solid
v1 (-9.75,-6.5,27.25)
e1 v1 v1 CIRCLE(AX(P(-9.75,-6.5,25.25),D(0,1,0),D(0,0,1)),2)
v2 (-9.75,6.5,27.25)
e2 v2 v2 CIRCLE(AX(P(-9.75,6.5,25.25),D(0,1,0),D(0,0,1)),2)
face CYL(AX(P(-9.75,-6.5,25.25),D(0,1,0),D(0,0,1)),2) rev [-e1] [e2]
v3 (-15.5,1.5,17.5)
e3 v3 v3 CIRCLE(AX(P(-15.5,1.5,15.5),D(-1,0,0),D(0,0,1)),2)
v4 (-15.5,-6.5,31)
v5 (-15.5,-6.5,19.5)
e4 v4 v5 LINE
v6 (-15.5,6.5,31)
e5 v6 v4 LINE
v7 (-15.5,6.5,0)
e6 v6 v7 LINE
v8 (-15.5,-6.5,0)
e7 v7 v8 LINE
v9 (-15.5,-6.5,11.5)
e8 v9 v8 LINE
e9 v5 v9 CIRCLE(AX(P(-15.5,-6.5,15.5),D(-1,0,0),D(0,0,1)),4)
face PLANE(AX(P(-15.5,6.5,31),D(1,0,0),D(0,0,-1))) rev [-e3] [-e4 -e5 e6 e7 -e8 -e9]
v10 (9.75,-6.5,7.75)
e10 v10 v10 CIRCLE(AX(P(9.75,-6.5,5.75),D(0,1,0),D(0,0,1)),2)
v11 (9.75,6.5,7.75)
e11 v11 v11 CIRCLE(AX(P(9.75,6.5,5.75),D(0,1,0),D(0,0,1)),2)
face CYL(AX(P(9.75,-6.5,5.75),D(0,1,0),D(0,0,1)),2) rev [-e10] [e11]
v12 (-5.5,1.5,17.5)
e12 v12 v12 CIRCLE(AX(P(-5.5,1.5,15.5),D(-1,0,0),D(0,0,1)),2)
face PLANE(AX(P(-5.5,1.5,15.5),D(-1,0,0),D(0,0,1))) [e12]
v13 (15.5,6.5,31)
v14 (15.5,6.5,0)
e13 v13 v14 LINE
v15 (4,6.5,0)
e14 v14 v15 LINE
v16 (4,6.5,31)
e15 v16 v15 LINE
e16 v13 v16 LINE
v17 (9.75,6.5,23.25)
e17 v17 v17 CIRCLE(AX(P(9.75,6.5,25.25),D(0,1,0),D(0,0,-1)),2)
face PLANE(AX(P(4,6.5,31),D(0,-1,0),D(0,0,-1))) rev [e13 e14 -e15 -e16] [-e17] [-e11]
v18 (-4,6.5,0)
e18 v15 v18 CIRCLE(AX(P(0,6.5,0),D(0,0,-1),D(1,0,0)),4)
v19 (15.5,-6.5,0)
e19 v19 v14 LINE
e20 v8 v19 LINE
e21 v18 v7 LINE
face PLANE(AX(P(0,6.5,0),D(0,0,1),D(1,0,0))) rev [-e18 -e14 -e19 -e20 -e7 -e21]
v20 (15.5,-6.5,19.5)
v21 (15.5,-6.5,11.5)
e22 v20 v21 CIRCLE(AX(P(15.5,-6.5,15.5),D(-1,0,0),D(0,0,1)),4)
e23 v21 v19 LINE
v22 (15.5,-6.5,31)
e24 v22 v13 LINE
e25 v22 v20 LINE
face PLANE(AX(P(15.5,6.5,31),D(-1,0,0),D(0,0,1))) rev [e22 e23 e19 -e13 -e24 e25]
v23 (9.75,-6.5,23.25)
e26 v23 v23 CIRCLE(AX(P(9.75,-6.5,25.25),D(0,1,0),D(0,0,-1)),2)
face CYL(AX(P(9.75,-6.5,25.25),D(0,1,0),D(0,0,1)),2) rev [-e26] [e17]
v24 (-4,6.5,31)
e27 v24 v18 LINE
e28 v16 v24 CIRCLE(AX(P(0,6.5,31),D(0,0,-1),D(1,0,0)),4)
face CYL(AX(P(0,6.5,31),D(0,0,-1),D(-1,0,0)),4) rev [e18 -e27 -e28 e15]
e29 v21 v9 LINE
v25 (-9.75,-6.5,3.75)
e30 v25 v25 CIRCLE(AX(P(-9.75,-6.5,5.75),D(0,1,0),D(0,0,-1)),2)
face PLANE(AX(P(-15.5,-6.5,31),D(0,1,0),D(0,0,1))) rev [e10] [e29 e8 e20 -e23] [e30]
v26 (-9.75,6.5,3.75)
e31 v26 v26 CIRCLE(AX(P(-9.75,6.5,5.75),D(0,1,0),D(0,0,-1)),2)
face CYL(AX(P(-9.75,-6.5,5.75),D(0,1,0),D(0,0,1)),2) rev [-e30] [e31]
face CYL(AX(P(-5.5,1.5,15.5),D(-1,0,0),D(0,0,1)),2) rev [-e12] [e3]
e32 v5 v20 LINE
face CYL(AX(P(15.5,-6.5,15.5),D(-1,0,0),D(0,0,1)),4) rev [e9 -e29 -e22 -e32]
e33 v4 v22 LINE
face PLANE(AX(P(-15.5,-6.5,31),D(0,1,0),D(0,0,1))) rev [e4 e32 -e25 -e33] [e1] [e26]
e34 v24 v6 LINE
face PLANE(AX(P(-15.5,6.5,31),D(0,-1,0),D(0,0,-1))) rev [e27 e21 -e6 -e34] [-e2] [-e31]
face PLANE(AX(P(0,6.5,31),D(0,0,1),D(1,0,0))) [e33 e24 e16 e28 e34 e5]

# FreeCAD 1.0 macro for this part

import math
import FreeCAD as App
import Part
import Sketcher
from FreeCAD import Vector

doc = App.newDocument("Part")
params = doc.addObject("Spreadsheet::Sheet", "Params")
for row, (alias, value) in enumerate([
    ("sketch1_radius", "4 mm"),
    ("sketch1_width", "31 mm"),
    ("sketch1_height", "13 mm"),
    ("pad1_length", "31 mm"),
    ("sketch2_diameter", "8 mm"),
    ("sketch3_diameter", "4 mm"),
    ("sketch4_diameter", "4 mm"),
    ("pocket3_length", "10 mm"),
], start=1):
    params.set(f"A{row}", alias)
    params.set(f"B{row}", "=" + value)
    params.setAlias(f"B{row}", alias)

body = doc.addObject("PartDesign::Body", "Body")

sketch1 = doc.addObject("Sketcher::SketchObject", "Sketch")
body.addObject(sketch1)
sketch1.AttachmentSupport = (doc.XY_Plane, [""])
sketch1.MapMode = "FlatFace"
sketch1.addGeometry([
    Part.LineSegment(Vector(-4, 6.5, 0), Vector(-15.5, 6.5, 0)),
    Part.LineSegment(Vector(-15.5, 6.5, 0), Vector(-15.5, -6.5, 0)),
    Part.LineSegment(Vector(-15.5, -6.5, 0), Vector(15.5, -6.5, 0)),
    Part.LineSegment(Vector(15.5, -6.5, 0), Vector(15.5, 6.5, 0)),
    Part.LineSegment(Vector(15.5, 6.5, 0), Vector(4, 6.5, 0)),
    Part.ArcOfCircle(Part.Circle(Vector(0, 6.5, 0), Vector(0, 0, 1), 4), math.radians(180), math.radians(360)),
], False)
sketch1.addConstraint([
    Sketcher.Constraint("Coincident", 0, 2, 1, 1),
    Sketcher.Constraint("Coincident", 1, 2, 2, 1),
    Sketcher.Constraint("Coincident", 2, 2, 3, 1),
    Sketcher.Constraint("Coincident", 3, 2, 4, 1),
    Sketcher.Constraint("Coincident", 4, 2, 5, 2),
    Sketcher.Constraint("Coincident", 5, 1, 0, 1),
    Sketcher.Constraint("Horizontal", 0),
    Sketcher.Constraint("Vertical", 1),
    Sketcher.Constraint("Horizontal", 2),
    Sketcher.Constraint("Vertical", 3),
    Sketcher.Constraint("Horizontal", 4),
    Sketcher.Constraint("Symmetric", 0, 2, 2, 2, -1, 1),
    Sketcher.Constraint("Symmetric", 4, 2, 5, 1, -2),
    Sketcher.Constraint("Horizontal", 5, 3, 0, 2),
    Sketcher.Constraint("Radius", 5, 4.0),
    Sketcher.Constraint("DistanceX", 2, 1, 2, 2, 31.0),
    Sketcher.Constraint("DistanceY", 1, 2, 1, 1, 13.0),
])
sketch1.setExpression("Constraints[14]", "Params.sketch1_radius")
sketch1.setExpression("Constraints[15]", "Params.sketch1_width")
sketch1.setExpression("Constraints[16]", "Params.sketch1_height")
pad1 = doc.addObject("PartDesign::Pad", "Pad")
body.addObject(pad1)
pad1.Profile = sketch1
pad1.setExpression("Length", "Params.pad1_length")

sketch2 = doc.addObject("Sketcher::SketchObject", "Sketch001")
body.addObject(sketch2)
sketch2.AttachmentSupport = (doc.YZ_Plane, [""])
sketch2.MapMode = "FlatFace"
sketch2.AttachmentOffset = App.Placement(Vector(0, 0, -15.5), App.Rotation())
sketch2.addGeometry(Part.Circle(Vector(-6.5, 15.5, 0), Vector(0, 0, 1), 4), False)
sketch2.addConstraint([
    Sketcher.Constraint("Diameter", 0, 8.0),
    Sketcher.Constraint("DistanceX", 0, 3, -1, 1, 6.5),
    Sketcher.Constraint("DistanceY", -1, 1, 0, 3, 15.5),
])
sketch2.setExpression("Constraints[0]", "Params.sketch2_diameter")
pocket1 = doc.addObject("PartDesign::Pocket", "Pocket")
body.addObject(pocket1)
pocket1.Profile = sketch2
pocket1.Type = "ThroughAll"
pocket1.Reversed = True

sketch3 = doc.addObject("Sketcher::SketchObject", "Sketch002")
body.addObject(sketch3)
sketch3.AttachmentSupport = (doc.XZ_Plane, [""])
sketch3.MapMode = "FlatFace"
sketch3.AttachmentOffset = App.Placement(Vector(0, 0, -6.5), App.Rotation())
sketch3.addGeometry([
    Part.Circle(Vector(9.8, 5.8, 0), Vector(0, 0, 1), 2),
    Part.Circle(Vector(9.8, 25.2, 0), Vector(0, 0, 1), 2),
    Part.Circle(Vector(-9.8, 25.2, 0), Vector(0, 0, 1), 2),
    Part.Circle(Vector(-9.8, 5.8, 0), Vector(0, 0, 1), 2),
], False)
sketch3.addConstraint([
    Sketcher.Constraint("Equal", 0, 1),
    Sketcher.Constraint("Equal", 1, 2),
    Sketcher.Constraint("Equal", 2, 3),
    Sketcher.Constraint("Symmetric", 1, 3, 2, 3, -2),
    Sketcher.Constraint("Symmetric", 0, 3, 3, 3, -2),
    Sketcher.Constraint("Vertical", 0, 3, 1, 3),
    Sketcher.Constraint("Diameter", 0, 4.0),
    Sketcher.Constraint("DistanceY", 0, 3, 1, 3, 19.5),
    Sketcher.Constraint("DistanceX", 2, 3, 1, 3, 19.5),
    Sketcher.Constraint("DistanceY", -1, 1, 0, 3, 5.75),
])
sketch3.setExpression("Constraints[6]", "Params.sketch3_diameter")
pocket2 = doc.addObject("PartDesign::Pocket", "Pocket001")
body.addObject(pocket2)
pocket2.Profile = sketch3
pocket2.Type = "ThroughAll"
pocket2.Reversed = True

sketch4 = doc.addObject("Sketcher::SketchObject", "Sketch003")
body.addObject(sketch4)
sketch4.AttachmentSupport = (doc.YZ_Plane, [""])
sketch4.MapMode = "FlatFace"
sketch4.AttachmentOffset = App.Placement(Vector(0, 0, -15.5), App.Rotation())
sketch4.addGeometry(Part.Circle(Vector(1.5, 15.5, 0), Vector(0, 0, 1), 2), False)
sketch4.addConstraint([
    Sketcher.Constraint("Diameter", 0, 4.0),
    Sketcher.Constraint("DistanceX", -1, 1, 0, 3, 1.5),
    Sketcher.Constraint("DistanceY", -1, 1, 0, 3, 15.5),
])
sketch4.setExpression("Constraints[0]", "Params.sketch4_diameter")
pocket3 = doc.addObject("PartDesign::Pocket", "Pocket002")
body.addObject(pocket3)
pocket3.Profile = sketch4
pocket3.setExpression("Length", "Params.pocket3_length")
pocket3.Reversed = True

doc.recompute()
